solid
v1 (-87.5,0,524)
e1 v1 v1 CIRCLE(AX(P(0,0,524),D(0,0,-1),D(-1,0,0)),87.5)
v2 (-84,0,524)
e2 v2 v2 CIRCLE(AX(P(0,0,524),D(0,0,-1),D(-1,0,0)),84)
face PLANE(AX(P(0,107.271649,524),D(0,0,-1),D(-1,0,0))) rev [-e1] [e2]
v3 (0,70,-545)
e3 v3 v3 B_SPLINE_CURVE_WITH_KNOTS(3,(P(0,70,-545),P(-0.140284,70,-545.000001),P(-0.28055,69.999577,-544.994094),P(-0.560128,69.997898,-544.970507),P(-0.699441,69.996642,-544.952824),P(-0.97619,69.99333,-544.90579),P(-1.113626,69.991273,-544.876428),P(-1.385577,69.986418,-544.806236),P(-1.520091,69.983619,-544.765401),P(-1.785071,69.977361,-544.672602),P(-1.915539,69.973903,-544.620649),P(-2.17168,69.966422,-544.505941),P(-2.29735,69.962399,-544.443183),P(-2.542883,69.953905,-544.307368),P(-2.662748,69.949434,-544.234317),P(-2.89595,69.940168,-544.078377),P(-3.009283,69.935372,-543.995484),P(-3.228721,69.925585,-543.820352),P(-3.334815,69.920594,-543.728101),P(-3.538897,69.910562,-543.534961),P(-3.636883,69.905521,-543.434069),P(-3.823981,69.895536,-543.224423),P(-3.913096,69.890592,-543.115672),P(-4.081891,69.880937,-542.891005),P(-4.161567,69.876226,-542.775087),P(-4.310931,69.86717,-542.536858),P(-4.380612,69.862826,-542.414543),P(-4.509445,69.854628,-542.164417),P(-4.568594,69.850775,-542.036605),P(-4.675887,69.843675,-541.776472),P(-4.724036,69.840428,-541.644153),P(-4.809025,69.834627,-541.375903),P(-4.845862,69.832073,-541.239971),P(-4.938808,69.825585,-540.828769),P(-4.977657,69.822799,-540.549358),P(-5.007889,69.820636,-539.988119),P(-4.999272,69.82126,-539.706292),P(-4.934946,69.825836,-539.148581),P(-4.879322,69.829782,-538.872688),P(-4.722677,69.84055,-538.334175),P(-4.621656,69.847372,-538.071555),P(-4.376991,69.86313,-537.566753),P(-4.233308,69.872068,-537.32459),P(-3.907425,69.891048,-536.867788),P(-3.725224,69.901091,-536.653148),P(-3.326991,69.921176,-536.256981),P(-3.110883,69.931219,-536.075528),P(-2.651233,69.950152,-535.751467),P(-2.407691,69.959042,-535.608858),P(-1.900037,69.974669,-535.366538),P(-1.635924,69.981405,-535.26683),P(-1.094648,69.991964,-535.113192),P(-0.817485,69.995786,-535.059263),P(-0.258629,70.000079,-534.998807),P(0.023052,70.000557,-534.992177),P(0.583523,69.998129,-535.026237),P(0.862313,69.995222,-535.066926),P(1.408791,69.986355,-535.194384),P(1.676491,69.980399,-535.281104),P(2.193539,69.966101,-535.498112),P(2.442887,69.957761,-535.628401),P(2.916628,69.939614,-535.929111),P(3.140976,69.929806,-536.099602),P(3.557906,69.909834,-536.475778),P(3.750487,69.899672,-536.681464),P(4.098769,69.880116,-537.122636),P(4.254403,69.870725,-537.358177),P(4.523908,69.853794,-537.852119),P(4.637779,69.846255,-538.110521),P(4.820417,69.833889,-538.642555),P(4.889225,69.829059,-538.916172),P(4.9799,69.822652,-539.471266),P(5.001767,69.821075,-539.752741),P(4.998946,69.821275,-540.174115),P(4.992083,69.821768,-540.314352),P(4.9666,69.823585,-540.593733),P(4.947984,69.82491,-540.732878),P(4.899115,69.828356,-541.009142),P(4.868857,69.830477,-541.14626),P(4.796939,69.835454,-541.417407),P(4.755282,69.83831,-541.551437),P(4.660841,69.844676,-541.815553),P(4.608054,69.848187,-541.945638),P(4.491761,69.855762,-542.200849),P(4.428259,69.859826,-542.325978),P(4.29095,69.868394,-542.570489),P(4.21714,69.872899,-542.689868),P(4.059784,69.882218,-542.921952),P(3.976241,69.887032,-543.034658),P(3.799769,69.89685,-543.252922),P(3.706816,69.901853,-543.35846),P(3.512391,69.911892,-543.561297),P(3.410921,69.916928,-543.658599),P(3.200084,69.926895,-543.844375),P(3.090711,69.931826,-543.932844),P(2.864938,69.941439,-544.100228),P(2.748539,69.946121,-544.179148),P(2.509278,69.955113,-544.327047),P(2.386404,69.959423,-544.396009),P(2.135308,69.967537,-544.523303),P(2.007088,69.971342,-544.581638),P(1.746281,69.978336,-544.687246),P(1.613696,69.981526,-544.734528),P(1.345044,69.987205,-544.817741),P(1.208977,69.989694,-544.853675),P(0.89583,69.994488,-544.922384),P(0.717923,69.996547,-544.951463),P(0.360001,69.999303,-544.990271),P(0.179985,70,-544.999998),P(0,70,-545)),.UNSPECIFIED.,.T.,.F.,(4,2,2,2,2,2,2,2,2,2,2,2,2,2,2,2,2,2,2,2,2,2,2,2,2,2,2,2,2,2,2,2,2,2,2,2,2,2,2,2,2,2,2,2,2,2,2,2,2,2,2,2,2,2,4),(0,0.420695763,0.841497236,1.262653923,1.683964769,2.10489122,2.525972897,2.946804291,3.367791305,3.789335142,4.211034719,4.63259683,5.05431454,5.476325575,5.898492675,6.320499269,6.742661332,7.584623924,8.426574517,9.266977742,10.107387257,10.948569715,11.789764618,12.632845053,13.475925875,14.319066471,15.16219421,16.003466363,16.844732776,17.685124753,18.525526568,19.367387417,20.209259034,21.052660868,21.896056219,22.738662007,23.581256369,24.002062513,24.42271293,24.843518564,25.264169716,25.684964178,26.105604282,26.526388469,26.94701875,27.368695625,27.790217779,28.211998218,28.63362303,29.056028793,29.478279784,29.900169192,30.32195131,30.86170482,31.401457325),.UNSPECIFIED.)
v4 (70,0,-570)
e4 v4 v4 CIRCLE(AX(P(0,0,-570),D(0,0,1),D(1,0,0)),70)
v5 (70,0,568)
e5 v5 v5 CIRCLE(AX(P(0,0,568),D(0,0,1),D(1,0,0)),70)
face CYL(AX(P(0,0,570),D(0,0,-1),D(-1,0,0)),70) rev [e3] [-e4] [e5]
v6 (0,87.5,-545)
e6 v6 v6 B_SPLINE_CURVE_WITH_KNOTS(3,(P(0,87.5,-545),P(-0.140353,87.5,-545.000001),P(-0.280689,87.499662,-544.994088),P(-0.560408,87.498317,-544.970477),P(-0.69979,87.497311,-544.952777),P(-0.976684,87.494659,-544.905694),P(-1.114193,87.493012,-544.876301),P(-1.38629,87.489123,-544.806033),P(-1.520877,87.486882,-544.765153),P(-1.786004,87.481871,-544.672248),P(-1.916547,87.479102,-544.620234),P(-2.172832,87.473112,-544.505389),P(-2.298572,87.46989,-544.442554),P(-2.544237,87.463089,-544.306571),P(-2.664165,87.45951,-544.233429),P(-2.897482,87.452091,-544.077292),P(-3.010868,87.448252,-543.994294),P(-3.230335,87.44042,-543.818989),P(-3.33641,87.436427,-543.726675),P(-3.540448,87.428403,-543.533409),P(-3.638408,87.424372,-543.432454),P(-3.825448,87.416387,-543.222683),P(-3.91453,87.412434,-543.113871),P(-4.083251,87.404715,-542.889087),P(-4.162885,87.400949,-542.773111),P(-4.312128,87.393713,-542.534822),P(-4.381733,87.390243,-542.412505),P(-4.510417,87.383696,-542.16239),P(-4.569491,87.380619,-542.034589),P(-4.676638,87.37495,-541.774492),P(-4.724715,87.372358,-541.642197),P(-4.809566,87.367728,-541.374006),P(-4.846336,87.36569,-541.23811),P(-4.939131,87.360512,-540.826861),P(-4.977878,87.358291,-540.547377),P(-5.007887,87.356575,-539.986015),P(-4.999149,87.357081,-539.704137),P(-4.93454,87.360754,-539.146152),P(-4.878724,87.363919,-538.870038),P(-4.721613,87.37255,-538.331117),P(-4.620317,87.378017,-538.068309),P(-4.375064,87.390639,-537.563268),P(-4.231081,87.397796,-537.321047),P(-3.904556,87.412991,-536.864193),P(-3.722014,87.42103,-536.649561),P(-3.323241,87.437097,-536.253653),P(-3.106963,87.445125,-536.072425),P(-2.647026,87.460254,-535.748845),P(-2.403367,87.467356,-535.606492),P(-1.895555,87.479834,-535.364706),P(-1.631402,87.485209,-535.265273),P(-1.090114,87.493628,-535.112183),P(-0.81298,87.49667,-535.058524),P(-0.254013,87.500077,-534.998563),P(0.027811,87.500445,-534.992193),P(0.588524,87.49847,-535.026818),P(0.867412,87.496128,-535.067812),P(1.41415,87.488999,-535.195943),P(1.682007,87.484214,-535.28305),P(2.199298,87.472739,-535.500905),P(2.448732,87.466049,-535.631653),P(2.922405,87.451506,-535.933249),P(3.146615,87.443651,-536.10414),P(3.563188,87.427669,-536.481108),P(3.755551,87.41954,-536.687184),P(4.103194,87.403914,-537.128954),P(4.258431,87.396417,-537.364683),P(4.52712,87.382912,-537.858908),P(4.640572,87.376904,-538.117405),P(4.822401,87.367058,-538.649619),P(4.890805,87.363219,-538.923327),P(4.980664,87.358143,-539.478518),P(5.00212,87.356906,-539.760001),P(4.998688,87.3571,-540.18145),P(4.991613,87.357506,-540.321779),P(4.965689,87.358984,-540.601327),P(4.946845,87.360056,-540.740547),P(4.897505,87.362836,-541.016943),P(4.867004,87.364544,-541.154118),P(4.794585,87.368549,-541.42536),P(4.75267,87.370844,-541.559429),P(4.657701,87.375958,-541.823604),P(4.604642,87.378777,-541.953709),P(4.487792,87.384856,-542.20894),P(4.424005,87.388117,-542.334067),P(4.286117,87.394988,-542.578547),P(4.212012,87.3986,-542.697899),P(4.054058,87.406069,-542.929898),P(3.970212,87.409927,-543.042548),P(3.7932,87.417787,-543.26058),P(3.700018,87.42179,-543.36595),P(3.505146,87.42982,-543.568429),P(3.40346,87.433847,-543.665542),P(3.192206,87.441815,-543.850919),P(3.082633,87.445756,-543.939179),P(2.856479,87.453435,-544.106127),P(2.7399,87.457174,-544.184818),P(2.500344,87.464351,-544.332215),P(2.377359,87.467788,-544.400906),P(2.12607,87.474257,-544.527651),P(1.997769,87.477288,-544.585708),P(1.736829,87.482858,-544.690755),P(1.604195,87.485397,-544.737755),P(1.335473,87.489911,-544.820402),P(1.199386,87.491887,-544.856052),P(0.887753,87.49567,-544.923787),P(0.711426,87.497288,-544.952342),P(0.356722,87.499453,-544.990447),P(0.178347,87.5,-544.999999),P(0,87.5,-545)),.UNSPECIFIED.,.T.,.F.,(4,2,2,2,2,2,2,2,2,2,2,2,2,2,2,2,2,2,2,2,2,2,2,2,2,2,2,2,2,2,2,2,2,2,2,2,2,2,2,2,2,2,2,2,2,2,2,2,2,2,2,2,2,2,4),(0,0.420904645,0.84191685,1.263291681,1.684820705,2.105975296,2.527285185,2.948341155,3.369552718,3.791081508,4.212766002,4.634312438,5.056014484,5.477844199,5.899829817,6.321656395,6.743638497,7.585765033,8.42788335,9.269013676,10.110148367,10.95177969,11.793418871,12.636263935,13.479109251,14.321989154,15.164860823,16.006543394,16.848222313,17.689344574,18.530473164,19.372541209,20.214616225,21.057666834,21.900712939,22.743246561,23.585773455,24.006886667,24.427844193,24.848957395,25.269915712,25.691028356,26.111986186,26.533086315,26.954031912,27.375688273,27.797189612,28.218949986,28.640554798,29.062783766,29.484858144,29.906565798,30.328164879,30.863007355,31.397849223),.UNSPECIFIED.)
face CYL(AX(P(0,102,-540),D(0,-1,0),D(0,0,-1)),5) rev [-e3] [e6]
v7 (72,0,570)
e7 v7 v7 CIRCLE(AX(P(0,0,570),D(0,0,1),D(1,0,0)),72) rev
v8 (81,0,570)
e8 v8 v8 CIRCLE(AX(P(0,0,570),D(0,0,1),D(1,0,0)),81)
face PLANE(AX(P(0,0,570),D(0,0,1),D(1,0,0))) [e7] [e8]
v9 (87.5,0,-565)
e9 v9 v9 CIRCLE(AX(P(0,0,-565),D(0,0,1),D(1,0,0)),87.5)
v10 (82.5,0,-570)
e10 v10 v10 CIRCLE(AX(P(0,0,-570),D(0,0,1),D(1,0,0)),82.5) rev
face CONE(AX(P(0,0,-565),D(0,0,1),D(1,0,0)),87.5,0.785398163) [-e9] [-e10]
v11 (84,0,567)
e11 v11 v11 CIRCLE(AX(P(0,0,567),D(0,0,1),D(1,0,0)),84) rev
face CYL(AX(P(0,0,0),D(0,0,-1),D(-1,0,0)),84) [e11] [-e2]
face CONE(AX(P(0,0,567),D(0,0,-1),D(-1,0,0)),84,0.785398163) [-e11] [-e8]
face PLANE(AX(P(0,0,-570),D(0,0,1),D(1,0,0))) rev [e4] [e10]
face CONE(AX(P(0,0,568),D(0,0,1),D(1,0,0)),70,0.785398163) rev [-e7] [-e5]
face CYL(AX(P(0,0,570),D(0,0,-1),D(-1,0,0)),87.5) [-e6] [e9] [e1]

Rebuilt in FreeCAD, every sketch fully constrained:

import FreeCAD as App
import Part
import Sketcher

V = App.Vector


def edges_at(feature, points):
    """Names of the edges that pass closest to the given points."""
    edges = feature.Shape.Edges
    near = lambda p: min(range(len(edges)), key=lambda i: edges[i].distToShape(Part.Vertex(*p))[0])
    return sorted({f"Edge{near(p) + 1}" for p in points})

doc = App.newDocument("Part")
body = doc.addObject("PartDesign::Body", "Body")

sketch1 = doc.addObject("Sketcher::SketchObject", "Sketch")
body.addObject(sketch1)
sketch1.AttachmentSupport = (doc.XY_Plane, [""])
sketch1.MapMode = "FlatFace"
sketch1.addGeometry([
    Part.Circle(V(0, 0, 0), V(0, 0, 1), 88),
    Part.Circle(V(0, 0, 0), V(0, 0, 1), 70),
], False)
sketch1.addConstraint([
    Sketcher.Constraint("Coincident", 0, 3, -1, 1),
    Sketcher.Constraint("Coincident", 1, 3, -1, 1),
    Sketcher.Constraint("Diameter", 0, 175.0),
    Sketcher.Constraint("Diameter", 1, 140.0),
])
pad1 = doc.addObject("PartDesign::Pad", "Pad")
body.addObject(pad1)
pad1.Profile = sketch1
pad1.Length = 1140
pad1.Midplane = True
doc.recompute()

chamfer = doc.addObject("PartDesign::Chamfer", "Chamfer")
body.addObject(chamfer)
chamfer.Base = (pad1, edges_at(pad1, [(-87.5, 0, -570)]))
chamfer.Size = 5

sketch2 = doc.addObject("Sketcher::SketchObject", "Sketch001")
body.addObject(sketch2)
sketch2.AttachmentSupport = (doc.YZ_Plane, [""])
sketch2.MapMode = "FlatFace"
sketch2.addGeometry([
    Part.LineSegment(V(107, 570, 0), V(84, 570, 0)),
    Part.LineSegment(V(84, 570, 0), V(84, 524, 0)),
    Part.LineSegment(V(84, 524, 0), V(107, 524, 0)),
    Part.LineSegment(V(107, 524, 0), V(107, 570, 0)),
], False)
sketch2.addConstraint([
    Sketcher.Constraint("Coincident", 0, 2, 1, 1),
    Sketcher.Constraint("Coincident", 1, 2, 2, 1),
    Sketcher.Constraint("Coincident", 2, 2, 3, 1),
    Sketcher.Constraint("Coincident", 3, 2, 0, 1),
    Sketcher.Constraint("Horizontal", 0),
    Sketcher.Constraint("Vertical", 1),
    Sketcher.Constraint("Horizontal", 2),
    Sketcher.Constraint("Vertical", 3),
    Sketcher.Constraint("DistanceY", 1, 2, 1, 1, 46.0),
    Sketcher.Constraint("DistanceX", -1, 1, 0, 2, 84.0),
    Sketcher.Constraint("DistanceY", -1, 1, 0, 2, 570.0),
    Sketcher.Constraint("DistanceX", 0, 2, 0, 1, 23.271649),
])
groove = doc.addObject("PartDesign::Groove", "Groove")
body.addObject(groove)
groove.Profile = sketch2
groove.ReferenceAxis = (sketch2, ["V_Axis"])
groove.Angle = 360
doc.recompute()

chamfer2 = doc.addObject("PartDesign::Chamfer", "Chamfer001")
body.addObject(chamfer2)
chamfer2.Base = (groove, edges_at(groove, [(0, -84, 570)]))
chamfer2.Size = 3
doc.recompute()

chamfer3 = doc.addObject("PartDesign::Chamfer", "Chamfer002")
body.addObject(chamfer3)
chamfer3.Base = (chamfer2, edges_at(chamfer2, [(-70, 0, 570)]))
chamfer3.Size = 2

sketch3 = doc.addObject("Sketcher::SketchObject", "Sketch002")
body.addObject(sketch3)
sketch3.AttachmentSupport = (doc.XZ_Plane, [""])
sketch3.MapMode = "FlatFace"
sketch3.addGeometry(Part.Circle(V(0, -540, 0), V(0, 0, 1), 5), False)
sketch3.addConstraint([
    Sketcher.Constraint("PointOnObject", 0, 3, -2),
    Sketcher.Constraint("Diameter", 0, 10.0),
    Sketcher.Constraint("DistanceY", 0, 3, -1, 1, 540.0),
])
pocket1 = doc.addObject("PartDesign::Pocket", "Pocket")
body.addObject(pocket1)
pocket1.Profile = sketch3
pocket1.Length = 102

doc.recompute()
